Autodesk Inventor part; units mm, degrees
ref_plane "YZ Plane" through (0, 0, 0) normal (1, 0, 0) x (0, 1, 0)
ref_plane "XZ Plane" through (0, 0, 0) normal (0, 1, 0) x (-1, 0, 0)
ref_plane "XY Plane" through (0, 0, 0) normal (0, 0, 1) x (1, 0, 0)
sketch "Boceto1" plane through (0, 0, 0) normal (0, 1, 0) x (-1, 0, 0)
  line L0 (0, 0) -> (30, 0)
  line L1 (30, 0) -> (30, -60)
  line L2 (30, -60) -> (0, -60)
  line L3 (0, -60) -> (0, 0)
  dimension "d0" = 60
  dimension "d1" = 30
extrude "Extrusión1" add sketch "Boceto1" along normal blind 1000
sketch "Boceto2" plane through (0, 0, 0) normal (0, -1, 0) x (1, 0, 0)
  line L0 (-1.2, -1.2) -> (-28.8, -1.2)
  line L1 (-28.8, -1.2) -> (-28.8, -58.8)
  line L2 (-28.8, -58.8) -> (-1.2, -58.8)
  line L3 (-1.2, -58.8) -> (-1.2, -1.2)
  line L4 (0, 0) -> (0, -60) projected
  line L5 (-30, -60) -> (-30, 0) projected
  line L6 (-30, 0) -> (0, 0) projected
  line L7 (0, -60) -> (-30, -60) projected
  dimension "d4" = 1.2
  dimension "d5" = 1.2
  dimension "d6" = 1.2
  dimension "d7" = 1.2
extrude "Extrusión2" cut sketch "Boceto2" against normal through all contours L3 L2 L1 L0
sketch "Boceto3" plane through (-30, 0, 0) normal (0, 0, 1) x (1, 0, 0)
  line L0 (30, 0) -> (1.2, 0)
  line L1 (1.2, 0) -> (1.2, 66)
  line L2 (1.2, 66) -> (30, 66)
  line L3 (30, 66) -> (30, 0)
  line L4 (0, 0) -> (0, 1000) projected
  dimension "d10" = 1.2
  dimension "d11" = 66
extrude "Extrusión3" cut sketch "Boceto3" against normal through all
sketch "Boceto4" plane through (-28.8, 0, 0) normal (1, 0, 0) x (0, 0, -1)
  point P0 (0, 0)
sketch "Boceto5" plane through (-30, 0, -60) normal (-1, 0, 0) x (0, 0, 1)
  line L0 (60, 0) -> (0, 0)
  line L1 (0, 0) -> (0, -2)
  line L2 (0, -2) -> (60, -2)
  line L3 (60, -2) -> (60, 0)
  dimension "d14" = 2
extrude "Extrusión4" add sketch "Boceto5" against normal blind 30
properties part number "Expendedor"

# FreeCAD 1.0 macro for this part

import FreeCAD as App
import Part
import Sketcher
from FreeCAD import Vector


def add_polygon(sketch, points):
    """Adds a closed chain of lines whose ends are joined by coincident constraints."""
    first, n = sketch.GeometryCount, len(points)
    for a, b in zip(points, points[1:] + points[:1]):
        sketch.addGeometry(Part.LineSegment(App.Vector(*a, 0), App.Vector(*b, 0)), False)
    for i in range(n):
        sketch.addConstraint(Sketcher.Constraint("Coincident", first + i, 2, first + (i + 1) % n, 1))

doc = App.newDocument("Part")
params = doc.addObject("Spreadsheet::Sheet", "Params")
for row, (alias, value) in enumerate([
    ("sketch1_width", "30 mm"),
    ("sketch1_height", "60 mm"),
    ("pad1_length", "1000 mm"),
    ("sketch2_width", "27.6 mm"),
    ("sketch2_height", "57.6 mm"),
    ("sketch3_height", "66 mm"),
    ("sketch3_width", "28.8 mm"),
    ("sketch4_width", "2 mm"),
    ("sketch4_height", "60 mm"),
    ("pad2_length", "30 mm"),
], start=1):
    params.set(f"A{row}", alias)
    params.set(f"B{row}", "=" + value)
    params.setAlias(f"B{row}", alias)

body = doc.addObject("PartDesign::Body", "Body")

# Sketch on XZ plane
sketch1 = body.newObject("Sketcher::SketchObject", "Sketch")
sketch1.AttachmentSupport = (doc.getObject("XZ_Plane"), [""])
sketch1.MapMode = "FlatFace"
add_polygon(sketch1, [(-30, 0), (0, 0), (0, -60), (-30, -60)])  # lines 0-3
sketch1.addConstraint([
    Sketcher.Constraint("Horizontal", 0),
    Sketcher.Constraint("Vertical", 1),
    Sketcher.Constraint("Horizontal", 2),
    Sketcher.Constraint("Vertical", 3),
    Sketcher.Constraint("Coincident", 0, 2, -1, 1),
    Sketcher.Constraint("DistanceX", 0, 1, 0, 2, 30.0),
    Sketcher.Constraint("DistanceY", 1, 2, 1, 1, 60.0),
])
sketch1.setExpression("Constraints[9]", "Params.sketch1_width")
sketch1.setExpression("Constraints[10]", "Params.sketch1_height")
pad1 = body.newObject("PartDesign::Pad", "Pad")
pad1.Profile = sketch1
pad1.setExpression("Length", "Params.pad1_length")
pad1.Reversed = True

# Sketch on XZ plane
sketch2 = body.newObject("Sketcher::SketchObject", "Sketch001")
sketch2.AttachmentSupport = (doc.getObject("XZ_Plane"), [""])
sketch2.MapMode = "FlatFace"
add_polygon(sketch2, [(-1, -59), (-1, -1), (-29, -1), (-29, -59)])  # lines 0-3
sketch2.addConstraint([
    Sketcher.Constraint("Vertical", 0),
    Sketcher.Constraint("Horizontal", 1),
    Sketcher.Constraint("Vertical", 2),
    Sketcher.Constraint("Horizontal", 3),
    Sketcher.Constraint("DistanceX", 0, 2, -1, 1, 1.2),
    Sketcher.Constraint("DistanceY", 0, 2, -1, 1, 1.2),
    Sketcher.Constraint("DistanceX", 1, 2, 1, 1, 27.6),
    Sketcher.Constraint("DistanceY", 0, 1, 0, 2, 57.6),
])
sketch2.setExpression("Constraints[10]", "Params.sketch2_width")
sketch2.setExpression("Constraints[11]", "Params.sketch2_height")
pocket1 = body.newObject("PartDesign::Pocket", "Pocket")
pocket1.Profile = sketch2
pocket1.Type = "ThroughAll"

# Sketch on XY plane
sketch3 = body.newObject("Sketcher::SketchObject", "Sketch002")
sketch3.AttachmentSupport = (doc.getObject("XY_Plane"), [""])
sketch3.MapMode = "FlatFace"
add_polygon(sketch3, [(-29, 0), (0, 0), (0, 66), (-29, 66)])  # lines 0-3
sketch3.addConstraint([
    Sketcher.Constraint("Horizontal", 0),
    Sketcher.Constraint("Vertical", 1),
    Sketcher.Constraint("Horizontal", 2),
    Sketcher.Constraint("Vertical", 3),
    Sketcher.Constraint("Coincident", 0, 2, -1, 1),
    Sketcher.Constraint("DistanceY", 1, 1, 1, 2, 66.0),
    Sketcher.Constraint("DistanceX", 0, 1, 0, 2, 28.8),
])
sketch3.setExpression("Constraints[9]", "Params.sketch3_height")
sketch3.setExpression("Constraints[10]", "Params.sketch3_width")
pocket2 = body.newObject("PartDesign::Pocket", "Pocket001")
pocket2.Profile = sketch3
pocket2.Type = "ThroughAll"

# Sketch on YZ plane
sketch4 = body.newObject("Sketcher::SketchObject", "Sketch003")
sketch4.AttachmentSupport = (doc.getObject("YZ_Plane"), [""])
sketch4.MapMode = "FlatFace"
sketch4.AttachmentOffset = App.Placement(Vector(0, 0, -30), App.Rotation())
add_polygon(sketch4, [(-2, 0), (0, 0), (0, -60), (-2, -60)])  # lines 0-3
sketch4.addConstraint([
    Sketcher.Constraint("Horizontal", 0),
    Sketcher.Constraint("Vertical", 1),
    Sketcher.Constraint("Horizontal", 2),
    Sketcher.Constraint("Vertical", 3),
    Sketcher.Constraint("Coincident", 0, 2, -1, 1),
    Sketcher.Constraint("DistanceX", 0, 1, 0, 2, 2.0),
    Sketcher.Constraint("DistanceY", 1, 2, 1, 1, 60.0),
])
sketch4.setExpression("Constraints[9]", "Params.sketch4_width")
sketch4.setExpression("Constraints[10]", "Params.sketch4_height")
pad2 = body.newObject("PartDesign::Pad", "Pad001")
pad2.Profile = sketch4
pad2.setExpression("Length", "Params.pad2_length")

doc.recompute()
